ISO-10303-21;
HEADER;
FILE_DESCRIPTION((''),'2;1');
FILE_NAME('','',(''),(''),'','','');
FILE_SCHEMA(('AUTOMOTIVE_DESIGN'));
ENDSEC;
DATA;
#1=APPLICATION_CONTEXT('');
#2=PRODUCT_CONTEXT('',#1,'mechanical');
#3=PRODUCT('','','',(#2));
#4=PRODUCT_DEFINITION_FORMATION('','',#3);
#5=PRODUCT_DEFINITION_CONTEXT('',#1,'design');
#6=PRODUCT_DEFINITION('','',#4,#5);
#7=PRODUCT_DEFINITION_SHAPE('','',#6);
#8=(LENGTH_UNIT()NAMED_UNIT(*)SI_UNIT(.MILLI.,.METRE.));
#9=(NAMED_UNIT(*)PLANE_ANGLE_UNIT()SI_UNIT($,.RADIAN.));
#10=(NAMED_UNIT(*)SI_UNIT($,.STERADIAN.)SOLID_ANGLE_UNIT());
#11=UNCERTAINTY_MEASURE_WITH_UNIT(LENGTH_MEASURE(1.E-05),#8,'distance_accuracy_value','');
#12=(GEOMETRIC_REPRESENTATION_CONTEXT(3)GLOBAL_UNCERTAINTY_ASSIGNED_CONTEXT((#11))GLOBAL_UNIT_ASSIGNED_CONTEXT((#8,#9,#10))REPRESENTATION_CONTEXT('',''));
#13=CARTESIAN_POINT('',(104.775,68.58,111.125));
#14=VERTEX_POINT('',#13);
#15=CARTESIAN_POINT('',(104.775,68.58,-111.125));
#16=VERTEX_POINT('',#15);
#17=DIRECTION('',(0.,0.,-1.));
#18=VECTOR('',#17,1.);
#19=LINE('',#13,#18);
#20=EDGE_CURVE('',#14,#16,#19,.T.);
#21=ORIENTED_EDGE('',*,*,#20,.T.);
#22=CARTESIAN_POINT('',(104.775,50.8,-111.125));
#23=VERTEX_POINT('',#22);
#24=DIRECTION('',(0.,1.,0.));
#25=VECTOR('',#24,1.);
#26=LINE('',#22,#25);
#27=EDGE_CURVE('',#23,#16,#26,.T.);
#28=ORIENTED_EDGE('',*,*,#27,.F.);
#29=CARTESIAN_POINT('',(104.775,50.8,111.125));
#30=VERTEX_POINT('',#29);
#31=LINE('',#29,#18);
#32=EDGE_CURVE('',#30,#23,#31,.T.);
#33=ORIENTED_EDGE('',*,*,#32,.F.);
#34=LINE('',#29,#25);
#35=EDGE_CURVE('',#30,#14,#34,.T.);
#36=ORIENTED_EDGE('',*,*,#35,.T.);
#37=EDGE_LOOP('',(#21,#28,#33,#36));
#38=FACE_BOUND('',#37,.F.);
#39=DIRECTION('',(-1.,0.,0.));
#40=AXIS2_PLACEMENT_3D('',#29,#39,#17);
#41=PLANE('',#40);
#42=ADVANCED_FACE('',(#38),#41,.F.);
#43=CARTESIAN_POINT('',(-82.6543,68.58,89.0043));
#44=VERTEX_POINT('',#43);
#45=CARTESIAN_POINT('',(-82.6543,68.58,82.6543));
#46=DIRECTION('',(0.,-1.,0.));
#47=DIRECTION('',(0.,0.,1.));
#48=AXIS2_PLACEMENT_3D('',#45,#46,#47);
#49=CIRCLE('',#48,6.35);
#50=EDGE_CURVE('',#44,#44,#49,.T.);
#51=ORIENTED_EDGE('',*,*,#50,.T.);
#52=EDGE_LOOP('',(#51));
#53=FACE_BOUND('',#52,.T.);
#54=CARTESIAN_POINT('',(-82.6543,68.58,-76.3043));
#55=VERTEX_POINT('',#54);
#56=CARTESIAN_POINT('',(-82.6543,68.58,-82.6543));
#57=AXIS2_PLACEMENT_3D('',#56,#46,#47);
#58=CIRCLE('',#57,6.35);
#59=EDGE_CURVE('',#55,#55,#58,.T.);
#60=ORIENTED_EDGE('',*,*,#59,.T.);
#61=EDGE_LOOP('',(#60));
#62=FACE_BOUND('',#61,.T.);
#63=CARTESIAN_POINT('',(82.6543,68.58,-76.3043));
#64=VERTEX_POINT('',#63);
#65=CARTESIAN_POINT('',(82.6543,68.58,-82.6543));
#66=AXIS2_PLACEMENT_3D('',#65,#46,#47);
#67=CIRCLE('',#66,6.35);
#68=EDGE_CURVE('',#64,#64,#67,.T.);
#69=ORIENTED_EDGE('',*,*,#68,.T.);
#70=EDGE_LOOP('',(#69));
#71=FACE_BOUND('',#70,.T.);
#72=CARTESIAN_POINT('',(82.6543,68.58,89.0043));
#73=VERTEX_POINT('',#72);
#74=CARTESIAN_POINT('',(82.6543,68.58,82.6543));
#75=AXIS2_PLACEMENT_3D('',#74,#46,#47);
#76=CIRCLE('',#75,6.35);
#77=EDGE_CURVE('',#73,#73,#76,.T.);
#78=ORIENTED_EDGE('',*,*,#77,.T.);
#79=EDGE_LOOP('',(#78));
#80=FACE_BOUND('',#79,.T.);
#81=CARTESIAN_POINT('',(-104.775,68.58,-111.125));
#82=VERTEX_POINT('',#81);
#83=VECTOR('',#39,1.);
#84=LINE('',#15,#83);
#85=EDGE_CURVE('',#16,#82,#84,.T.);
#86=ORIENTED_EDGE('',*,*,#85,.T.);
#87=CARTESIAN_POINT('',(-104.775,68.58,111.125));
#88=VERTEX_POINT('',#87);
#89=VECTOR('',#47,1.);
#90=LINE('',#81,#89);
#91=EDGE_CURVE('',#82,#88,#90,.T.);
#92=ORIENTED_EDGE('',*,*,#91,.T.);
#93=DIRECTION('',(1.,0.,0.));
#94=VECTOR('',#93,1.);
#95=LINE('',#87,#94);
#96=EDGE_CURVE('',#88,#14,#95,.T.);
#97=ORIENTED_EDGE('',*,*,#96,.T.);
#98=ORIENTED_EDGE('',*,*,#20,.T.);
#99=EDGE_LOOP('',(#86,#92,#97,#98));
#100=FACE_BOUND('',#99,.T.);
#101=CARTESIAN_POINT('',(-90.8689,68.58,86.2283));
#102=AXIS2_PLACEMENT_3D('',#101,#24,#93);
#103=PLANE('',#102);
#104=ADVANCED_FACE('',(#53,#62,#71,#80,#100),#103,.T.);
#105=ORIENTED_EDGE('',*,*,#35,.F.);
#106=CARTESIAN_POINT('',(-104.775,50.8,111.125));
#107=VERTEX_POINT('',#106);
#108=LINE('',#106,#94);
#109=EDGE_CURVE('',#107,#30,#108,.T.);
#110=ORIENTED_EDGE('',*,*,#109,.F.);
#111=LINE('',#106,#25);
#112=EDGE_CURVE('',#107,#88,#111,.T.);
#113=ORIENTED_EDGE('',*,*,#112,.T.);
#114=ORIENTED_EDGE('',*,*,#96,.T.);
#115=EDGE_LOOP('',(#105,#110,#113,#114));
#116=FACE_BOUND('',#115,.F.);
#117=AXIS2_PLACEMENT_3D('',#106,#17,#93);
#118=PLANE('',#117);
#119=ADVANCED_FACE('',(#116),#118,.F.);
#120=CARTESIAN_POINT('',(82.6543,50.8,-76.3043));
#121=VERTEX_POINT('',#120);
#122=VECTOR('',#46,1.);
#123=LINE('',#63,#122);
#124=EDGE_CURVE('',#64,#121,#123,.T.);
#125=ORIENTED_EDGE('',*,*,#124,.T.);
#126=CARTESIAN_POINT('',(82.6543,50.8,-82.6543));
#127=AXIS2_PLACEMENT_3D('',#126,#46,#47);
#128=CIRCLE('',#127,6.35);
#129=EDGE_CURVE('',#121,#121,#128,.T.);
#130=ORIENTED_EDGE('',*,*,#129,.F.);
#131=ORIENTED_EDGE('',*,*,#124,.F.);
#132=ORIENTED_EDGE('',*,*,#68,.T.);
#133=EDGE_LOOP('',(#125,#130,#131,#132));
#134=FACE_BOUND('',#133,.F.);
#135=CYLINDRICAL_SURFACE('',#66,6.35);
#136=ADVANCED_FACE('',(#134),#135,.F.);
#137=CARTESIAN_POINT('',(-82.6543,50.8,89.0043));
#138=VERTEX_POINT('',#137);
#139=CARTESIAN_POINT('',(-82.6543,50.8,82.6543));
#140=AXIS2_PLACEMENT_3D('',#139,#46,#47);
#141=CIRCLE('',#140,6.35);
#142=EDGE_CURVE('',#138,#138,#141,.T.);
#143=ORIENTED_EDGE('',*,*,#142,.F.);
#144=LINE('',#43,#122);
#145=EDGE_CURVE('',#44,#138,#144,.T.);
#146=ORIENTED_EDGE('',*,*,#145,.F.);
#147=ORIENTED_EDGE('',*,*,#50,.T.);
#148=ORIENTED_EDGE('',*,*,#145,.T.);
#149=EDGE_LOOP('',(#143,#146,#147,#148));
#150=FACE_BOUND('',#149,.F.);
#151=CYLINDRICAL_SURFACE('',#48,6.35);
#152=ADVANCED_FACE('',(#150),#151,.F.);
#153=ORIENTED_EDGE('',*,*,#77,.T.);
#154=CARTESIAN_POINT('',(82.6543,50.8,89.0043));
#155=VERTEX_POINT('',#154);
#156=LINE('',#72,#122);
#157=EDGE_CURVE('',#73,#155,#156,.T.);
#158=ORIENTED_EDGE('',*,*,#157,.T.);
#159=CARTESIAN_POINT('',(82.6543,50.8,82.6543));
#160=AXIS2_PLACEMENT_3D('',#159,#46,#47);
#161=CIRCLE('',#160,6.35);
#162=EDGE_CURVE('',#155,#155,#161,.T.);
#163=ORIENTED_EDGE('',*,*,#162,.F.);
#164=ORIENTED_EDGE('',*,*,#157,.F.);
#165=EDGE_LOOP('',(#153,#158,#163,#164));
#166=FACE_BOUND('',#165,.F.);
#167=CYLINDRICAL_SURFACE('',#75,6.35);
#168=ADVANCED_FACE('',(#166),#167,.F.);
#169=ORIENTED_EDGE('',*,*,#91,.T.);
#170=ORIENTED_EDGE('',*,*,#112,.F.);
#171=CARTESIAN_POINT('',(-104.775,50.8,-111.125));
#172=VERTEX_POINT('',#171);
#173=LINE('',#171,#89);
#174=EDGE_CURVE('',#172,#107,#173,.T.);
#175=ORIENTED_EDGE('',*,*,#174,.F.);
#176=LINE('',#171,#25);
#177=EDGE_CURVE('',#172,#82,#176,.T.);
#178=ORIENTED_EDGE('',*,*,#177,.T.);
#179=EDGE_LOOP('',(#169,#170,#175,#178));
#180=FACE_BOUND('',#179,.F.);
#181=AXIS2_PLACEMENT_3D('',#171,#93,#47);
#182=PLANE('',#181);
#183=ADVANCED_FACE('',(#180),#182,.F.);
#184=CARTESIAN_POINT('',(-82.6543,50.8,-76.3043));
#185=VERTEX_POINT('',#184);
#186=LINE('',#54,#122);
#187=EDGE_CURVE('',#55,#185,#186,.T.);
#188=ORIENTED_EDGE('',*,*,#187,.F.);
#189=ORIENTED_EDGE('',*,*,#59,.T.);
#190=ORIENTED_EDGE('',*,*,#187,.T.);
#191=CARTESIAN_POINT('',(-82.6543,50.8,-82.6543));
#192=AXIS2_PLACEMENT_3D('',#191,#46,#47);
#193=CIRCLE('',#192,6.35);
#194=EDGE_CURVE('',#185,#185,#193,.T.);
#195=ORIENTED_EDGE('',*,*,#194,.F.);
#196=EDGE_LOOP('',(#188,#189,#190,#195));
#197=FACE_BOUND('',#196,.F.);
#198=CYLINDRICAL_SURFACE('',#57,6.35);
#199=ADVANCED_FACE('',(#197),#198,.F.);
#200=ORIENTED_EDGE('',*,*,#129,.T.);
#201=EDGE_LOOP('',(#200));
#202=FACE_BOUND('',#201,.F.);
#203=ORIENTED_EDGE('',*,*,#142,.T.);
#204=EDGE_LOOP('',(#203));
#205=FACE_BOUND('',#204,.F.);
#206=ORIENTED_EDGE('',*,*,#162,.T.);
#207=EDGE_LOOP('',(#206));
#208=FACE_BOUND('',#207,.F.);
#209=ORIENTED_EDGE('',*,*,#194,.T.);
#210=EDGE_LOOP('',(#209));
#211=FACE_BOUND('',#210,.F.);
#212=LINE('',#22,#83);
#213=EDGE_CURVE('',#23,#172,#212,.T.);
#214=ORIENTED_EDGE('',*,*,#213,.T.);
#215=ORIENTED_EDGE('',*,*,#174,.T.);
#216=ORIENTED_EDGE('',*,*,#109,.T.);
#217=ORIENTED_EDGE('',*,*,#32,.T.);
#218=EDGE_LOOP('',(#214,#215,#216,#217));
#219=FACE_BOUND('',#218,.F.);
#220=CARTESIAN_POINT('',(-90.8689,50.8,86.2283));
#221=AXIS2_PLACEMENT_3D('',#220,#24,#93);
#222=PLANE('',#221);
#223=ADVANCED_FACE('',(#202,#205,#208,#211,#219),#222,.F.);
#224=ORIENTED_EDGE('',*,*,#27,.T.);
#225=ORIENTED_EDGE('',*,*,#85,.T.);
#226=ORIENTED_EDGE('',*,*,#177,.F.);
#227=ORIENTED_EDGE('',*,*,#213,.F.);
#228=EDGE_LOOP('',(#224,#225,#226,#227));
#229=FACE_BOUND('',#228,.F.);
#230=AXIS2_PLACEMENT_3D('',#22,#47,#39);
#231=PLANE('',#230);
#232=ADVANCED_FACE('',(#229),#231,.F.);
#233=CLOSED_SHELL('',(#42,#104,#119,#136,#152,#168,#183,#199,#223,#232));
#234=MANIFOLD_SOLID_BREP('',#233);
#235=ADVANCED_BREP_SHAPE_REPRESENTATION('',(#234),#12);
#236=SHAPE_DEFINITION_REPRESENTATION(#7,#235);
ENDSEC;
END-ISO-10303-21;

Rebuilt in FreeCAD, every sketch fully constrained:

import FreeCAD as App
import Part
import Sketcher

V = App.Vector
Q = App.Units.Quantity

doc = App.newDocument("Part")
body = doc.addObject("PartDesign::Body", "Body")

sketch1 = body.newObject("Sketcher::SketchObject", "Sketch")
sketch1.AttachmentSupport = (doc.getObject("XZ_Plane"), [""])
sketch1.MapMode = "FlatFace"
sketch1.AttachmentOffset = App.Placement(V(0, 0, -2 * 25.4), App.Rotation())
sketch1.addGeometry([
    Part.LineSegment(V(-104.775, -111.125, 0), V(-104.775, 111.125, 0)),
    Part.LineSegment(V(-104.775, 111.125, 0), V(104.775, 111.125, 0)),
    Part.LineSegment(V(104.775, 111.125, 0), V(104.775, -111.125, 0)),
    Part.LineSegment(V(104.775, -111.125, 0), V(-104.775, -111.125, 0)),
], False)
sketch1.addConstraint([
    Sketcher.Constraint("Coincident", 0, 2, 1, 1),
    Sketcher.Constraint("Coincident", 1, 2, 2, 1),
    Sketcher.Constraint("Coincident", 2, 2, 3, 1),
    Sketcher.Constraint("Coincident", 3, 2, 0, 1),
    Sketcher.Constraint("Vertical", 0),
    Sketcher.Constraint("Horizontal", 1),
    Sketcher.Constraint("Vertical", 2),
    Sketcher.Constraint("Horizontal", 3),
    Sketcher.Constraint("Symmetric", 0, 2, 2, 2, -1, 1),
    Sketcher.Constraint("DistanceX", 1, 1, 1, 2, Q("8.25 in")),
    Sketcher.Constraint("DistanceY", 0, 1, 0, 2, Q("8.75 in")),
])
pad1 = body.newObject("PartDesign::Pad", "Pad")
pad1.Profile = sketch1
pad1.Length = Q("0.7 in")
pad1.Reversed = True

sketch2 = body.newObject("Sketcher::SketchObject", "Sketch001")
sketch2.AttachmentSupport = (doc.getObject("XZ_Plane"), [""])
sketch2.MapMode = "FlatFace"
sketch2.AttachmentOffset = App.Placement(V(0, 0, -2.7 * 25.4), App.Rotation())
sketch2.addGeometry([
    Part.Circle(V(-82.6543, -82.6543, 0), V(0, 0, 1), 6.35),
    Part.Circle(V(82.6543, -82.6543, 0), V(0, 0, 1), 6.35),
    Part.Circle(V(82.6543, 82.6543, 0), V(0, 0, 1), 6.35),
    Part.Circle(V(-82.6543, 82.6543, 0), V(0, 0, 1), 6.35),
], False)
sketch2.addConstraint([
    Sketcher.Constraint("Equal", 0, 1),
    Sketcher.Constraint("Equal", 1, 2),
    Sketcher.Constraint("Equal", 2, 3),
    Sketcher.Constraint("Symmetric", 0, 3, 2, 3, -1, 1),
    Sketcher.Constraint("Symmetric", 1, 3, 3, 3, -1, 1),
    Sketcher.Constraint("Symmetric", 0, 3, 1, 3, -2),
    Sketcher.Constraint("Diameter", 0, Q("0.5 in")),
    Sketcher.Constraint("DistanceX", 0, 3, -1, 1, Q("3.2541 in")),
    Sketcher.Constraint("DistanceY", 0, 3, -1, 1, Q("3.2541 in")),
])
doc.recompute()
hole = body.newObject("PartDesign::Hole", "Hole")
hole.Profile = sketch2
hole.ThreadType = "None"
hole.Diameter = Q("0.5 in")
hole.DepthType = "ThroughAll"
hole.Reversed = True

doc.recompute()
